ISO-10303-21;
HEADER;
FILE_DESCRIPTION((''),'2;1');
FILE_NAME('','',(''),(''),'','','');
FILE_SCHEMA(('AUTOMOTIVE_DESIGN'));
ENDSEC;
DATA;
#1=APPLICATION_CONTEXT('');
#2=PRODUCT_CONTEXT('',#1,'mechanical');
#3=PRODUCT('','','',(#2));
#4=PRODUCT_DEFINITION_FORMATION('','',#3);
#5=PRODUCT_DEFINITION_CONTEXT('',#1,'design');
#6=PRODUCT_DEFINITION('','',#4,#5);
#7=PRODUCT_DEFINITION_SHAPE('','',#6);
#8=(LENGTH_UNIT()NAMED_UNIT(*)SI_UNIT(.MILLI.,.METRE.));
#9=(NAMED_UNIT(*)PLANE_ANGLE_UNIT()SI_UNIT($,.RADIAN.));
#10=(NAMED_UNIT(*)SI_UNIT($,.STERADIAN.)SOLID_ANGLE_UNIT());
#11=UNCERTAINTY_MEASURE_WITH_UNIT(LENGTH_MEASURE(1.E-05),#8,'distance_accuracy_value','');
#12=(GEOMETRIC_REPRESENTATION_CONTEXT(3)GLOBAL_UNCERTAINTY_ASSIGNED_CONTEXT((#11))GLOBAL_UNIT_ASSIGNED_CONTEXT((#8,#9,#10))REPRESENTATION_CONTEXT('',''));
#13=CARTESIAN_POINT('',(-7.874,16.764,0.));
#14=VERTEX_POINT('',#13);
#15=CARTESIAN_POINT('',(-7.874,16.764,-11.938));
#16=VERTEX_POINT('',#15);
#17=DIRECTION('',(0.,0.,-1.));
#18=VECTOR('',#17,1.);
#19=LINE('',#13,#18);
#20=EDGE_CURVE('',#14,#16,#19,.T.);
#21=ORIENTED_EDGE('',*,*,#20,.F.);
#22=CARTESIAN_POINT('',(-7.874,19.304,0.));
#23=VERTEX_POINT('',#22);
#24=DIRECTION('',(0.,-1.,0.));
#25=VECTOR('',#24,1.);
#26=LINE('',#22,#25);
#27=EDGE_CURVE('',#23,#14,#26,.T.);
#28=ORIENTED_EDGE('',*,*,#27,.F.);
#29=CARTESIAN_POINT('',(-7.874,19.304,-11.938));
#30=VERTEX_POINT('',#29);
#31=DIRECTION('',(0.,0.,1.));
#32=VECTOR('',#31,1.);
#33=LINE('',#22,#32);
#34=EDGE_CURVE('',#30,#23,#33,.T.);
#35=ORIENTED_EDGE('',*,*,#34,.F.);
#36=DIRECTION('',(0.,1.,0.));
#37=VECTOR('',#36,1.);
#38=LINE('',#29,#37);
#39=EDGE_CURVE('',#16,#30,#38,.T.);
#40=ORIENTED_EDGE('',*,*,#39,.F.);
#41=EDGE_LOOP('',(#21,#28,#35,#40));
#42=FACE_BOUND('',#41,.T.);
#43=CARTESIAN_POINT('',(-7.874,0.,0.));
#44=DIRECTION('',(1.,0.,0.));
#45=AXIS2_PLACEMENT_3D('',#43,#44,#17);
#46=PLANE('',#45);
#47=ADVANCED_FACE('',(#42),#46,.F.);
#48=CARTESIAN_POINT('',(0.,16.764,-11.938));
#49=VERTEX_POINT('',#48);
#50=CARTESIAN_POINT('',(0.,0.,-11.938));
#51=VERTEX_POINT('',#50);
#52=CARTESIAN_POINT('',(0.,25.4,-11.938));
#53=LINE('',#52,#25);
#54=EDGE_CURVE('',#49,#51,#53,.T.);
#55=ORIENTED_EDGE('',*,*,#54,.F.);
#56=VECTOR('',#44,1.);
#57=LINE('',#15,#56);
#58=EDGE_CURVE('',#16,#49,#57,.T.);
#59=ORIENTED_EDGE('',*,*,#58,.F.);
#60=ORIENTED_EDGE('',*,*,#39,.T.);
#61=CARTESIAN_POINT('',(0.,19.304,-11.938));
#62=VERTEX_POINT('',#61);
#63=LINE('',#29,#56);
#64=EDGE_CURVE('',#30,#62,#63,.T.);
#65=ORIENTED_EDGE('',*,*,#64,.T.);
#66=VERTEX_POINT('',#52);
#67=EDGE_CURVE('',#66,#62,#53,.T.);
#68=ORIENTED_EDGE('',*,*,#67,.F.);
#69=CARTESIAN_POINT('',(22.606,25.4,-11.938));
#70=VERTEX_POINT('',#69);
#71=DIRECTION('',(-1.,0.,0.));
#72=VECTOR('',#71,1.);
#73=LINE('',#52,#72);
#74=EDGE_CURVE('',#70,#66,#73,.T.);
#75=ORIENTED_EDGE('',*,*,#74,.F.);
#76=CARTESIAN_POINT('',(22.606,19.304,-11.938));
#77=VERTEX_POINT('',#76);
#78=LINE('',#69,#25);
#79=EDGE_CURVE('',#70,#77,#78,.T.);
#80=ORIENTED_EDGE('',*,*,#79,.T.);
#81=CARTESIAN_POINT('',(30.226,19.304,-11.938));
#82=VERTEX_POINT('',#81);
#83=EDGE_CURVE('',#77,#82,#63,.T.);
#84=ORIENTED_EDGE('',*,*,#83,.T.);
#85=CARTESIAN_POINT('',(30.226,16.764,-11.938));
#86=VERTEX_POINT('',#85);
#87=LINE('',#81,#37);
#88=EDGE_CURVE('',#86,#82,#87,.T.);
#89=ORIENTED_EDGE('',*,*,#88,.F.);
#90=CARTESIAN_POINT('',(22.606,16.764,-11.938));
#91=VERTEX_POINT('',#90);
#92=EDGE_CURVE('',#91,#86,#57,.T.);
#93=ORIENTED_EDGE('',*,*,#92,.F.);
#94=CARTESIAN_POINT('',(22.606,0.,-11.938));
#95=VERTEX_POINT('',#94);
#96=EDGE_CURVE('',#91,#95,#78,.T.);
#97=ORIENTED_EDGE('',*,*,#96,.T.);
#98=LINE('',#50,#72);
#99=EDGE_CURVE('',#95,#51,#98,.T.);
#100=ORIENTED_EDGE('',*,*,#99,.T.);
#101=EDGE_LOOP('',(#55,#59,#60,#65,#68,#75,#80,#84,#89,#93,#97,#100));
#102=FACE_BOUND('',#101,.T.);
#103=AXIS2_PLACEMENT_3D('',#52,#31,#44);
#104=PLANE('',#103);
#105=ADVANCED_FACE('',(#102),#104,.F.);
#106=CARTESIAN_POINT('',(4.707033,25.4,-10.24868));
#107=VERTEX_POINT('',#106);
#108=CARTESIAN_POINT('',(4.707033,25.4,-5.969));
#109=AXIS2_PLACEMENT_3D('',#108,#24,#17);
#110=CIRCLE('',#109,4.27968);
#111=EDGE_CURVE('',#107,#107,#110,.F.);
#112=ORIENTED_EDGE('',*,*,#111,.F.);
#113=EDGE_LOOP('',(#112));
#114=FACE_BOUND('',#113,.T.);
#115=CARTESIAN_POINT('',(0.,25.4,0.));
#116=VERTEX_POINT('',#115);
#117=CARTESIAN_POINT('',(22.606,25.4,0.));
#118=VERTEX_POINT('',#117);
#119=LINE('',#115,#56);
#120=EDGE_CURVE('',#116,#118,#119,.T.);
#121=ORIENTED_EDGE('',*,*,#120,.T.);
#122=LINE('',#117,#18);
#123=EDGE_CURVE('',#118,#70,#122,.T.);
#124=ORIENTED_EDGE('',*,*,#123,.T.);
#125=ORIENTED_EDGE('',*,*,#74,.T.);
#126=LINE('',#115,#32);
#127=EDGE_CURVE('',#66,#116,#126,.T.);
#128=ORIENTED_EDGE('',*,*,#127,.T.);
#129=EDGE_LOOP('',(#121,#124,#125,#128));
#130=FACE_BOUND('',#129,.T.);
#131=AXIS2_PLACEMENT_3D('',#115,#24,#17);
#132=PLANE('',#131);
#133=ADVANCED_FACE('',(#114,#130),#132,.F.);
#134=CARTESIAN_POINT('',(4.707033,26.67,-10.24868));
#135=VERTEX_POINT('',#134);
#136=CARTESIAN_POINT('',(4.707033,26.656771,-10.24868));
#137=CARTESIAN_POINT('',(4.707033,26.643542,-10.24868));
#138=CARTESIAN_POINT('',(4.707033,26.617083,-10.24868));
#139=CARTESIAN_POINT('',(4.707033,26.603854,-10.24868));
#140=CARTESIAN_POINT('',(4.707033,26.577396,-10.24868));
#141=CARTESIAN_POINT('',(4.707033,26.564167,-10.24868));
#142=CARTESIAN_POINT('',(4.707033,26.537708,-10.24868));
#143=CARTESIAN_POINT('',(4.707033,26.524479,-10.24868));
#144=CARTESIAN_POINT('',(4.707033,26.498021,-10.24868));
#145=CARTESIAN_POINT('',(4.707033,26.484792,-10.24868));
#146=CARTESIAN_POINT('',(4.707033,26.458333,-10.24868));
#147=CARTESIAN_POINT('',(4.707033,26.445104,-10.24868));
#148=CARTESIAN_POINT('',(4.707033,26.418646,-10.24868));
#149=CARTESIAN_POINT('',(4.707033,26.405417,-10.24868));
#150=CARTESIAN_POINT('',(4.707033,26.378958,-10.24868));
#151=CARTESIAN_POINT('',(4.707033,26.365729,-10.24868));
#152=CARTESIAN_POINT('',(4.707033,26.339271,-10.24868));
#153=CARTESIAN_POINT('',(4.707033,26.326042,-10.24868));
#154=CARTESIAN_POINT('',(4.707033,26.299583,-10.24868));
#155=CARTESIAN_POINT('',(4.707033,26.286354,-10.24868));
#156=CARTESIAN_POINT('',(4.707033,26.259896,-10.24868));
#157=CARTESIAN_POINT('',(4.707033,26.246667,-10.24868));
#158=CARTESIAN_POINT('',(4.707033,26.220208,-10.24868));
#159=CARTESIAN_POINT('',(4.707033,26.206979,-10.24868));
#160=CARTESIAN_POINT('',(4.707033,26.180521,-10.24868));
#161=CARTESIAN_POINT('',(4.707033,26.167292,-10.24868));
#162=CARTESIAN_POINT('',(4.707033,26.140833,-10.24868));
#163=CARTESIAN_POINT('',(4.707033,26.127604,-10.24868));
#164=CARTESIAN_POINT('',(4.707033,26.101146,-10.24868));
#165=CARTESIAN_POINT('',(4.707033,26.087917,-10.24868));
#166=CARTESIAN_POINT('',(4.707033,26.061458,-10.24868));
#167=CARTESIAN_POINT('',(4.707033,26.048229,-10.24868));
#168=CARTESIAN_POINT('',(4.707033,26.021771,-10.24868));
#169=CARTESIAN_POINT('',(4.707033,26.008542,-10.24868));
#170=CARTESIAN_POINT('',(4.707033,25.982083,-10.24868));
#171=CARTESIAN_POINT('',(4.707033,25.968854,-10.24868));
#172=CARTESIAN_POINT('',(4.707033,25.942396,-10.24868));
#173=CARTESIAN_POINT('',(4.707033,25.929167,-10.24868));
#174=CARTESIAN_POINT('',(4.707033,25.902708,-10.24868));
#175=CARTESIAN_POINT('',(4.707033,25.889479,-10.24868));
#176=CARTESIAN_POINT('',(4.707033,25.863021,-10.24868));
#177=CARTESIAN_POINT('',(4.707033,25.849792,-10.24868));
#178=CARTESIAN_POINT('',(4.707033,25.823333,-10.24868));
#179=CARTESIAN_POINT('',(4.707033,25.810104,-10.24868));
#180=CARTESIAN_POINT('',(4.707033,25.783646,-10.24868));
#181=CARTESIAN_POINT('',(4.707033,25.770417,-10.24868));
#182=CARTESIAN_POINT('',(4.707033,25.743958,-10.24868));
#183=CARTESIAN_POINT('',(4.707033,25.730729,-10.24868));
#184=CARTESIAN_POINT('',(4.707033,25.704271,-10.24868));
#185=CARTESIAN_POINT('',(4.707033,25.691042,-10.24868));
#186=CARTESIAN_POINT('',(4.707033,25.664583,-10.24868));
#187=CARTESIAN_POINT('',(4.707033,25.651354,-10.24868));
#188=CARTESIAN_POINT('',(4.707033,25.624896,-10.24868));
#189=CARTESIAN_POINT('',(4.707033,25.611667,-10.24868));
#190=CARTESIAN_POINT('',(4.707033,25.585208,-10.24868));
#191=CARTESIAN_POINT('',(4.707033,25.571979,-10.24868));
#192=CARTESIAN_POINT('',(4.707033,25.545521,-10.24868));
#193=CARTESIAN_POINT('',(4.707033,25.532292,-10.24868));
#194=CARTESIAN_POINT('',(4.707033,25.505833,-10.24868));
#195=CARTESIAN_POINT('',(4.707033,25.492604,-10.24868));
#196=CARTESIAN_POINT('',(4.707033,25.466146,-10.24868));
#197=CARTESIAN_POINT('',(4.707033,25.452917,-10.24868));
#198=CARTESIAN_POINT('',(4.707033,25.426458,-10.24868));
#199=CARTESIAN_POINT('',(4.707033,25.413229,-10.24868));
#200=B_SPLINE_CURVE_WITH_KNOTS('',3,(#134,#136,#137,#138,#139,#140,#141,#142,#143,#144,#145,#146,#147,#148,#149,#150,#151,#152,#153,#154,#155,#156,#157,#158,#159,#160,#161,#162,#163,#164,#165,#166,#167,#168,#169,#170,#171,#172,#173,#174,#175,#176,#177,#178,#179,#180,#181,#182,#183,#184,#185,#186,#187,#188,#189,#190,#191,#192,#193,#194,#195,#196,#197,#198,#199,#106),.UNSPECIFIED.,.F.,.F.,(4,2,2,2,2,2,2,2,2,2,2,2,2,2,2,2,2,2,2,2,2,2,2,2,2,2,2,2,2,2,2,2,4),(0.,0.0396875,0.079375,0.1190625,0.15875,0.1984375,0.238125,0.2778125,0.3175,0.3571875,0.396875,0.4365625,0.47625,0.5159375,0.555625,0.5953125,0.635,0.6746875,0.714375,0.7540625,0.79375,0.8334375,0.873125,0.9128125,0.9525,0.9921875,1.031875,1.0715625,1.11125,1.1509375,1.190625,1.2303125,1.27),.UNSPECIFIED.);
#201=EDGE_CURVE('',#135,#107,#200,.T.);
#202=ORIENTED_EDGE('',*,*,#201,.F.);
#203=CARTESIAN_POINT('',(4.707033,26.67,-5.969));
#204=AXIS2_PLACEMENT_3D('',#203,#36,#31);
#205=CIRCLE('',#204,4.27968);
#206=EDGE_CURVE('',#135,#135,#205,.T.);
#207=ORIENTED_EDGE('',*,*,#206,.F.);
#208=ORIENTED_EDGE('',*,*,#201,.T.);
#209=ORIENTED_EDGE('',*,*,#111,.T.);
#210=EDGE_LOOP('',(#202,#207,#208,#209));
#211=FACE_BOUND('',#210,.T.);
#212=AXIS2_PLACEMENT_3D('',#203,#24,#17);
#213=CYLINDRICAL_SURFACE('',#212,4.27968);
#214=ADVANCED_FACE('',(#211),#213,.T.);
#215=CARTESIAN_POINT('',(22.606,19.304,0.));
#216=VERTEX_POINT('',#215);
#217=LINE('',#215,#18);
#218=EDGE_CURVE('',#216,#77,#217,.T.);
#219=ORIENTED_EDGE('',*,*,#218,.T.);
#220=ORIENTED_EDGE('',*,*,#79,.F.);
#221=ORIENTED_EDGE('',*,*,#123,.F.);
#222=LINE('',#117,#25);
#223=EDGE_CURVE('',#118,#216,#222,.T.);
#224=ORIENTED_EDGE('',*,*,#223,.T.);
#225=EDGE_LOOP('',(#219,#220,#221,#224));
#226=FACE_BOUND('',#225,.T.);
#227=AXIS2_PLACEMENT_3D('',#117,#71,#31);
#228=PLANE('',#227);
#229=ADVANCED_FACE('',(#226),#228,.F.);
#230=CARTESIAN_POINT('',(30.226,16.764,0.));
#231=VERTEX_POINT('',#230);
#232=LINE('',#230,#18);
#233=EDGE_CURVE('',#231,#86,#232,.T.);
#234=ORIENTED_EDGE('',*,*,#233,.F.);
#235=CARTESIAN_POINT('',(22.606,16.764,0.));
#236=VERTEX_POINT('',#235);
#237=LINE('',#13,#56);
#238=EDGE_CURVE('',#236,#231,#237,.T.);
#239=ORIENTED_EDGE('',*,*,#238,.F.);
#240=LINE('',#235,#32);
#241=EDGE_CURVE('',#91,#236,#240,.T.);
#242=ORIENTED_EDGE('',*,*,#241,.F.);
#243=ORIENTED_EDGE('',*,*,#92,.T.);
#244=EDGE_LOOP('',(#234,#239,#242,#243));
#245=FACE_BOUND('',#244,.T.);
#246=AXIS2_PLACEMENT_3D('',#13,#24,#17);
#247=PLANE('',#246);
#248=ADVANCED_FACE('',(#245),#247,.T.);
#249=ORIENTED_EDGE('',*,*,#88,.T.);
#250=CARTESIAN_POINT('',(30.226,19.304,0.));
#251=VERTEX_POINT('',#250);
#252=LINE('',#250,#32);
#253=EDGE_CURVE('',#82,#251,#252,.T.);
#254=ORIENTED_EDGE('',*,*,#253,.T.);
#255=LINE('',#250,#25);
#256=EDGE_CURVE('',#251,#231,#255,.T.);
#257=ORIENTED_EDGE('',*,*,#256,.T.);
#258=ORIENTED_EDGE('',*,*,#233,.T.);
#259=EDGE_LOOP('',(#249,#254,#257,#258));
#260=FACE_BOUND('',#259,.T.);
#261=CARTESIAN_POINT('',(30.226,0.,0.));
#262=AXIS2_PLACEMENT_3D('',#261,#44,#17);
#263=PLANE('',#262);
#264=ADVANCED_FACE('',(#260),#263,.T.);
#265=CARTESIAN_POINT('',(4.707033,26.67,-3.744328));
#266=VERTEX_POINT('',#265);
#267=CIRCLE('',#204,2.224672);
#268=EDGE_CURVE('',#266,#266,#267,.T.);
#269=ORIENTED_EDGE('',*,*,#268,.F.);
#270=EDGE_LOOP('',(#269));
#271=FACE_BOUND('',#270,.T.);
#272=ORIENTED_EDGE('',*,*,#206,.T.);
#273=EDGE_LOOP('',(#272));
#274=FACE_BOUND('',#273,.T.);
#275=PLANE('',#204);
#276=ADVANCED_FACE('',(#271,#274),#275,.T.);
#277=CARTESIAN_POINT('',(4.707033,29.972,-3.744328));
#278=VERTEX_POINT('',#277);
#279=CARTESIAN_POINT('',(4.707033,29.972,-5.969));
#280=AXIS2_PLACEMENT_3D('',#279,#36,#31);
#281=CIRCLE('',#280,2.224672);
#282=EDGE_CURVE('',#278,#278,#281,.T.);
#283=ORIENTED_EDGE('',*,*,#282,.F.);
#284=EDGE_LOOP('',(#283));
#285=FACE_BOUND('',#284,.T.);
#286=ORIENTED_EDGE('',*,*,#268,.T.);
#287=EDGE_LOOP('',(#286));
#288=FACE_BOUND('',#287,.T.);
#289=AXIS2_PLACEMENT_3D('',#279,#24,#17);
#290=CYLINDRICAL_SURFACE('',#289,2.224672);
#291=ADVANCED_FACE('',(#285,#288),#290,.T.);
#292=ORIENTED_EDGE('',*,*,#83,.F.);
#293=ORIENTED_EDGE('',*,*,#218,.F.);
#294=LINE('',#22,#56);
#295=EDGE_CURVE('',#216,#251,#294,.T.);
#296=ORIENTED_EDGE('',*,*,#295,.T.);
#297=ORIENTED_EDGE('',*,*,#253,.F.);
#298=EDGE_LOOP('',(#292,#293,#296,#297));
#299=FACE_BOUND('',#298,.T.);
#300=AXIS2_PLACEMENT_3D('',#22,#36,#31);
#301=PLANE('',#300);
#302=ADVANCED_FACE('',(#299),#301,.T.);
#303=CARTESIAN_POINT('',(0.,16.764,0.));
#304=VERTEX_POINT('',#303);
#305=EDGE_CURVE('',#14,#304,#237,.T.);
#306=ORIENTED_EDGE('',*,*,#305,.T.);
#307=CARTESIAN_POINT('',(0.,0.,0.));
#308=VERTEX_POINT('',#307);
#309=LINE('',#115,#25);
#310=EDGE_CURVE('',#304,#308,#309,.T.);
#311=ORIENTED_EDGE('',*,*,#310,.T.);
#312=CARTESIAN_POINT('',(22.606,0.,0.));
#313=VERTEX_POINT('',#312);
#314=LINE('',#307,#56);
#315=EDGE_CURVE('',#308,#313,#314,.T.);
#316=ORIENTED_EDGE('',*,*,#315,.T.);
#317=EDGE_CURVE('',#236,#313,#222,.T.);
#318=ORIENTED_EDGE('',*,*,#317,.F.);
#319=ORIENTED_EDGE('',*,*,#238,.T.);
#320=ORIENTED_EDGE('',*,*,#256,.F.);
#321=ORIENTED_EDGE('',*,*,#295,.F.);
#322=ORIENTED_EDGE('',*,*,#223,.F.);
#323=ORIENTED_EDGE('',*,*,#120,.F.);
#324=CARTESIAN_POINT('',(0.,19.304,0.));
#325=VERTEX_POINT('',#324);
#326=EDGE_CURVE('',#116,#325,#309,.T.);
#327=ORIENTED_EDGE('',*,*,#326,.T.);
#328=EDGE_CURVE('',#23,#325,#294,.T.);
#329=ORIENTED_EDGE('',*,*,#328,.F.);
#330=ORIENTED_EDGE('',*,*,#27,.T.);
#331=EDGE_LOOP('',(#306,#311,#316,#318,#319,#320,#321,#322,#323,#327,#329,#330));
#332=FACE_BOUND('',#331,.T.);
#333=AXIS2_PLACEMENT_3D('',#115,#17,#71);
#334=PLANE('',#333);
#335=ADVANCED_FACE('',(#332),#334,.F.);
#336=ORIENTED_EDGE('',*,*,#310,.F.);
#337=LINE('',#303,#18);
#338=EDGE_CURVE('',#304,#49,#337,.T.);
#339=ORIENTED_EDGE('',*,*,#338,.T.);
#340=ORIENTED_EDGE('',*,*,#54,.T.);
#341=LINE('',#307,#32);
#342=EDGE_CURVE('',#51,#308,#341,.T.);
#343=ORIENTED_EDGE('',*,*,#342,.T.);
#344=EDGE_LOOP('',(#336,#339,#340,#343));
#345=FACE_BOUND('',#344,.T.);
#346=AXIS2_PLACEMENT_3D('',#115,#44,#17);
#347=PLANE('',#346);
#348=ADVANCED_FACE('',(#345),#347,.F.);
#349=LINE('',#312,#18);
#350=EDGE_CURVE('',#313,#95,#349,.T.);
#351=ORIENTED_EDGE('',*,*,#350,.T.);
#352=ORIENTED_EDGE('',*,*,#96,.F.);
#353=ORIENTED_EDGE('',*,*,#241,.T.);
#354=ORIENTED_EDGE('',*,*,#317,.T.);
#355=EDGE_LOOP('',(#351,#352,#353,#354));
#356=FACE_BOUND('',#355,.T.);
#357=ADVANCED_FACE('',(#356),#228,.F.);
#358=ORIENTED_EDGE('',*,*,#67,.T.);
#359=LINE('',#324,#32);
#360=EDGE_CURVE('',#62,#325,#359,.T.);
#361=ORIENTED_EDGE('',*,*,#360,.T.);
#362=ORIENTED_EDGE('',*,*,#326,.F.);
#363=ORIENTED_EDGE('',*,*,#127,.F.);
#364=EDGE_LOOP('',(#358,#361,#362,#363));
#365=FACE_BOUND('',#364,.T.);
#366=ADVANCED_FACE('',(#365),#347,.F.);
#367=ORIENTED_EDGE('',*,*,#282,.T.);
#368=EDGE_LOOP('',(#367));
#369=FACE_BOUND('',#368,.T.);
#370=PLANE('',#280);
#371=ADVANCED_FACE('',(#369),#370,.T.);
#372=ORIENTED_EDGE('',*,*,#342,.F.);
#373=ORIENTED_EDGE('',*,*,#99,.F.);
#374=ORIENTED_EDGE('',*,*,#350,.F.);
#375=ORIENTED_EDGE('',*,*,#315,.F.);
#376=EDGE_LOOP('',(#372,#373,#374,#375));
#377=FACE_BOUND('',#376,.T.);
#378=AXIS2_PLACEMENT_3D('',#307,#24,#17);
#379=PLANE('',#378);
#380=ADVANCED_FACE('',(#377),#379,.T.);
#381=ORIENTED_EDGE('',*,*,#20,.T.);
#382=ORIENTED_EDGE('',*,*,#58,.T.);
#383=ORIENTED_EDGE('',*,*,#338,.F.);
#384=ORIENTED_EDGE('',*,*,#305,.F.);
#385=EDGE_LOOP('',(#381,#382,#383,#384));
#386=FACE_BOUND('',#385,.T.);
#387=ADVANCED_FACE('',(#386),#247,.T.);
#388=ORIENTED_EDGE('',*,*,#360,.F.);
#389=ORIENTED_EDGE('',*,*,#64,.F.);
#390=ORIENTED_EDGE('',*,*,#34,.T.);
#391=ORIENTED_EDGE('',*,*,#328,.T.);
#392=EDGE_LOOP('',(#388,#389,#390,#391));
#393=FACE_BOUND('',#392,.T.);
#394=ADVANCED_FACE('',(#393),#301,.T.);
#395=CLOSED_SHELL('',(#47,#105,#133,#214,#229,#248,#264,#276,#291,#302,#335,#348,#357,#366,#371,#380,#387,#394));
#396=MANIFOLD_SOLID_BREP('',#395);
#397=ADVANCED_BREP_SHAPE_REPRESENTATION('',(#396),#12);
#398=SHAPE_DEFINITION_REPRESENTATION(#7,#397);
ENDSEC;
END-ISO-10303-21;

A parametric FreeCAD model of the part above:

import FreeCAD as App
import Part
import Sketcher

V = App.Vector
Q = App.Units.Quantity

doc = App.newDocument("Part")
body = doc.addObject("PartDesign::Body", "Body")

sketch1 = body.newObject("Sketcher::SketchObject", "Sketch")
sketch1.AttachmentSupport = (doc.getObject("XZ_Plane"), [""])
sketch1.MapMode = "FlatFace"
sketch1.addGeometry([
    Part.LineSegment(V(0, -12, 0), V(0, 0, 0)),
    Part.LineSegment(V(0, 0, 0), V(23, 0, 0)),
    Part.LineSegment(V(23, 0, 0), V(23, -12, 0)),
    Part.LineSegment(V(23, -12, 0), V(0, -12, 0)),
], False)
sketch1.addConstraint([
    Sketcher.Constraint("Coincident", 0, 2, 1, 1),
    Sketcher.Constraint("Coincident", 1, 2, 2, 1),
    Sketcher.Constraint("Coincident", 2, 2, 3, 1),
    Sketcher.Constraint("Coincident", 3, 2, 0, 1),
    Sketcher.Constraint("Vertical", 0),
    Sketcher.Constraint("Horizontal", 1),
    Sketcher.Constraint("Vertical", 2),
    Sketcher.Constraint("Horizontal", 3),
    Sketcher.Constraint("Coincident", 0, 2, -1, 1),
    Sketcher.Constraint("DistanceX", 1, 1, 1, 2, Q("0.89 in")),
    Sketcher.Constraint("DistanceY", 0, 1, 0, 2, Q("0.47 in")),
])
pad1 = body.newObject("PartDesign::Pad", "Pad")
pad1.Profile = sketch1
pad1.Length = Q("1 in")
pad1.Reversed = True

sketch2 = body.newObject("Sketcher::SketchObject", "Sketch001")
sketch2.AttachmentSupport = (doc.getObject("XZ_Plane"), [""])
sketch2.MapMode = "FlatFace"
sketch2.AttachmentOffset = App.Placement(V(0, 0, -1 * 25.4), App.Rotation())
sketch2.addGeometry(Part.Circle(V(4.7, -6, 0), V(0, 0, 1), 2.2), False)
sketch2.addConstraint([
    Sketcher.Constraint("DistanceY", 0, 3, -1, 1, Q("0.235 in")),
    Sketcher.Constraint("Diameter", 0, 4.449344),
    Sketcher.Constraint("DistanceX", -1, 1, 0, 3, 4.707033),
])
pad2 = body.newObject("PartDesign::Pad", "Pad001")
pad2.Profile = sketch2
pad2.Length = Q("0.18 in")
pad2.Reversed = True

sketch3 = body.newObject("Sketcher::SketchObject", "Sketch002")
sketch3.AttachmentSupport = (doc.getObject("XZ_Plane"), [""])
sketch3.MapMode = "FlatFace"
sketch3.AttachmentOffset = App.Placement(V(0, 0, -1 * 25.4), App.Rotation())
sketch3.addGeometry(Part.Circle(V(4.7, -6, 0), V(0, 0, 1), 4.3), False)
sketch3.addConstraint([
    Sketcher.Constraint("Diameter", 0, 8.55936),
    Sketcher.Constraint("DistanceY", 0, 3, -1, 1, Q("0.235 in")),
    Sketcher.Constraint("DistanceX", -1, 1, 0, 3, 4.707033),
])
pad3 = body.newObject("PartDesign::Pad", "Pad002")
pad3.Profile = sketch3
pad3.Length = Q("0.05 in")
pad3.Reversed = True

sketch4 = body.newObject("Sketcher::SketchObject", "Sketch003")
sketch4.AttachmentSupport = (doc.getObject("YZ_Plane"), [""])
sketch4.MapMode = "FlatFace"
sketch4.AttachmentOffset = App.Placement(V(0, 0, 0.89 * 25.4), App.Rotation())
sketch4.addGeometry([
    Part.LineSegment(V(19.3, 0, 0), V(16.8, 0, 0)),
    Part.LineSegment(V(16.8, 0, 0), V(16.8, -11.9, 0)),
    Part.LineSegment(V(16.8, -11.9, 0), V(19.3, -11.9, 0)),
    Part.LineSegment(V(19.3, -11.9, 0), V(19.3, 0, 0)),
], False)
sketch4.addConstraint([
    Sketcher.Constraint("Coincident", 0, 2, 1, 1),
    Sketcher.Constraint("Coincident", 1, 2, 2, 1),
    Sketcher.Constraint("Coincident", 2, 2, 3, 1),
    Sketcher.Constraint("Coincident", 3, 2, 0, 1),
    Sketcher.Constraint("Horizontal", 0),
    Sketcher.Constraint("Vertical", 1),
    Sketcher.Constraint("Horizontal", 2),
    Sketcher.Constraint("Vertical", 3),
    Sketcher.Constraint("PointOnObject", 0, 2, -1),
    Sketcher.Constraint("DistanceX", 0, 2, 0, 1, Q("0.1 in")),
    Sketcher.Constraint("DistanceY", 1, 2, 1, 1, Q("0.47 in")),
    Sketcher.Constraint("DistanceX", -1, 1, 0, 2, Q("0.66 in")),
])
pad4 = body.newObject("PartDesign::Pad", "Pad003")
pad4.Profile = sketch4
pad4.Type = "TwoLengths"
pad4.Length = Q("0.3 in")
pad4.Length2 = Q("1.2 in")

doc.recompute()
